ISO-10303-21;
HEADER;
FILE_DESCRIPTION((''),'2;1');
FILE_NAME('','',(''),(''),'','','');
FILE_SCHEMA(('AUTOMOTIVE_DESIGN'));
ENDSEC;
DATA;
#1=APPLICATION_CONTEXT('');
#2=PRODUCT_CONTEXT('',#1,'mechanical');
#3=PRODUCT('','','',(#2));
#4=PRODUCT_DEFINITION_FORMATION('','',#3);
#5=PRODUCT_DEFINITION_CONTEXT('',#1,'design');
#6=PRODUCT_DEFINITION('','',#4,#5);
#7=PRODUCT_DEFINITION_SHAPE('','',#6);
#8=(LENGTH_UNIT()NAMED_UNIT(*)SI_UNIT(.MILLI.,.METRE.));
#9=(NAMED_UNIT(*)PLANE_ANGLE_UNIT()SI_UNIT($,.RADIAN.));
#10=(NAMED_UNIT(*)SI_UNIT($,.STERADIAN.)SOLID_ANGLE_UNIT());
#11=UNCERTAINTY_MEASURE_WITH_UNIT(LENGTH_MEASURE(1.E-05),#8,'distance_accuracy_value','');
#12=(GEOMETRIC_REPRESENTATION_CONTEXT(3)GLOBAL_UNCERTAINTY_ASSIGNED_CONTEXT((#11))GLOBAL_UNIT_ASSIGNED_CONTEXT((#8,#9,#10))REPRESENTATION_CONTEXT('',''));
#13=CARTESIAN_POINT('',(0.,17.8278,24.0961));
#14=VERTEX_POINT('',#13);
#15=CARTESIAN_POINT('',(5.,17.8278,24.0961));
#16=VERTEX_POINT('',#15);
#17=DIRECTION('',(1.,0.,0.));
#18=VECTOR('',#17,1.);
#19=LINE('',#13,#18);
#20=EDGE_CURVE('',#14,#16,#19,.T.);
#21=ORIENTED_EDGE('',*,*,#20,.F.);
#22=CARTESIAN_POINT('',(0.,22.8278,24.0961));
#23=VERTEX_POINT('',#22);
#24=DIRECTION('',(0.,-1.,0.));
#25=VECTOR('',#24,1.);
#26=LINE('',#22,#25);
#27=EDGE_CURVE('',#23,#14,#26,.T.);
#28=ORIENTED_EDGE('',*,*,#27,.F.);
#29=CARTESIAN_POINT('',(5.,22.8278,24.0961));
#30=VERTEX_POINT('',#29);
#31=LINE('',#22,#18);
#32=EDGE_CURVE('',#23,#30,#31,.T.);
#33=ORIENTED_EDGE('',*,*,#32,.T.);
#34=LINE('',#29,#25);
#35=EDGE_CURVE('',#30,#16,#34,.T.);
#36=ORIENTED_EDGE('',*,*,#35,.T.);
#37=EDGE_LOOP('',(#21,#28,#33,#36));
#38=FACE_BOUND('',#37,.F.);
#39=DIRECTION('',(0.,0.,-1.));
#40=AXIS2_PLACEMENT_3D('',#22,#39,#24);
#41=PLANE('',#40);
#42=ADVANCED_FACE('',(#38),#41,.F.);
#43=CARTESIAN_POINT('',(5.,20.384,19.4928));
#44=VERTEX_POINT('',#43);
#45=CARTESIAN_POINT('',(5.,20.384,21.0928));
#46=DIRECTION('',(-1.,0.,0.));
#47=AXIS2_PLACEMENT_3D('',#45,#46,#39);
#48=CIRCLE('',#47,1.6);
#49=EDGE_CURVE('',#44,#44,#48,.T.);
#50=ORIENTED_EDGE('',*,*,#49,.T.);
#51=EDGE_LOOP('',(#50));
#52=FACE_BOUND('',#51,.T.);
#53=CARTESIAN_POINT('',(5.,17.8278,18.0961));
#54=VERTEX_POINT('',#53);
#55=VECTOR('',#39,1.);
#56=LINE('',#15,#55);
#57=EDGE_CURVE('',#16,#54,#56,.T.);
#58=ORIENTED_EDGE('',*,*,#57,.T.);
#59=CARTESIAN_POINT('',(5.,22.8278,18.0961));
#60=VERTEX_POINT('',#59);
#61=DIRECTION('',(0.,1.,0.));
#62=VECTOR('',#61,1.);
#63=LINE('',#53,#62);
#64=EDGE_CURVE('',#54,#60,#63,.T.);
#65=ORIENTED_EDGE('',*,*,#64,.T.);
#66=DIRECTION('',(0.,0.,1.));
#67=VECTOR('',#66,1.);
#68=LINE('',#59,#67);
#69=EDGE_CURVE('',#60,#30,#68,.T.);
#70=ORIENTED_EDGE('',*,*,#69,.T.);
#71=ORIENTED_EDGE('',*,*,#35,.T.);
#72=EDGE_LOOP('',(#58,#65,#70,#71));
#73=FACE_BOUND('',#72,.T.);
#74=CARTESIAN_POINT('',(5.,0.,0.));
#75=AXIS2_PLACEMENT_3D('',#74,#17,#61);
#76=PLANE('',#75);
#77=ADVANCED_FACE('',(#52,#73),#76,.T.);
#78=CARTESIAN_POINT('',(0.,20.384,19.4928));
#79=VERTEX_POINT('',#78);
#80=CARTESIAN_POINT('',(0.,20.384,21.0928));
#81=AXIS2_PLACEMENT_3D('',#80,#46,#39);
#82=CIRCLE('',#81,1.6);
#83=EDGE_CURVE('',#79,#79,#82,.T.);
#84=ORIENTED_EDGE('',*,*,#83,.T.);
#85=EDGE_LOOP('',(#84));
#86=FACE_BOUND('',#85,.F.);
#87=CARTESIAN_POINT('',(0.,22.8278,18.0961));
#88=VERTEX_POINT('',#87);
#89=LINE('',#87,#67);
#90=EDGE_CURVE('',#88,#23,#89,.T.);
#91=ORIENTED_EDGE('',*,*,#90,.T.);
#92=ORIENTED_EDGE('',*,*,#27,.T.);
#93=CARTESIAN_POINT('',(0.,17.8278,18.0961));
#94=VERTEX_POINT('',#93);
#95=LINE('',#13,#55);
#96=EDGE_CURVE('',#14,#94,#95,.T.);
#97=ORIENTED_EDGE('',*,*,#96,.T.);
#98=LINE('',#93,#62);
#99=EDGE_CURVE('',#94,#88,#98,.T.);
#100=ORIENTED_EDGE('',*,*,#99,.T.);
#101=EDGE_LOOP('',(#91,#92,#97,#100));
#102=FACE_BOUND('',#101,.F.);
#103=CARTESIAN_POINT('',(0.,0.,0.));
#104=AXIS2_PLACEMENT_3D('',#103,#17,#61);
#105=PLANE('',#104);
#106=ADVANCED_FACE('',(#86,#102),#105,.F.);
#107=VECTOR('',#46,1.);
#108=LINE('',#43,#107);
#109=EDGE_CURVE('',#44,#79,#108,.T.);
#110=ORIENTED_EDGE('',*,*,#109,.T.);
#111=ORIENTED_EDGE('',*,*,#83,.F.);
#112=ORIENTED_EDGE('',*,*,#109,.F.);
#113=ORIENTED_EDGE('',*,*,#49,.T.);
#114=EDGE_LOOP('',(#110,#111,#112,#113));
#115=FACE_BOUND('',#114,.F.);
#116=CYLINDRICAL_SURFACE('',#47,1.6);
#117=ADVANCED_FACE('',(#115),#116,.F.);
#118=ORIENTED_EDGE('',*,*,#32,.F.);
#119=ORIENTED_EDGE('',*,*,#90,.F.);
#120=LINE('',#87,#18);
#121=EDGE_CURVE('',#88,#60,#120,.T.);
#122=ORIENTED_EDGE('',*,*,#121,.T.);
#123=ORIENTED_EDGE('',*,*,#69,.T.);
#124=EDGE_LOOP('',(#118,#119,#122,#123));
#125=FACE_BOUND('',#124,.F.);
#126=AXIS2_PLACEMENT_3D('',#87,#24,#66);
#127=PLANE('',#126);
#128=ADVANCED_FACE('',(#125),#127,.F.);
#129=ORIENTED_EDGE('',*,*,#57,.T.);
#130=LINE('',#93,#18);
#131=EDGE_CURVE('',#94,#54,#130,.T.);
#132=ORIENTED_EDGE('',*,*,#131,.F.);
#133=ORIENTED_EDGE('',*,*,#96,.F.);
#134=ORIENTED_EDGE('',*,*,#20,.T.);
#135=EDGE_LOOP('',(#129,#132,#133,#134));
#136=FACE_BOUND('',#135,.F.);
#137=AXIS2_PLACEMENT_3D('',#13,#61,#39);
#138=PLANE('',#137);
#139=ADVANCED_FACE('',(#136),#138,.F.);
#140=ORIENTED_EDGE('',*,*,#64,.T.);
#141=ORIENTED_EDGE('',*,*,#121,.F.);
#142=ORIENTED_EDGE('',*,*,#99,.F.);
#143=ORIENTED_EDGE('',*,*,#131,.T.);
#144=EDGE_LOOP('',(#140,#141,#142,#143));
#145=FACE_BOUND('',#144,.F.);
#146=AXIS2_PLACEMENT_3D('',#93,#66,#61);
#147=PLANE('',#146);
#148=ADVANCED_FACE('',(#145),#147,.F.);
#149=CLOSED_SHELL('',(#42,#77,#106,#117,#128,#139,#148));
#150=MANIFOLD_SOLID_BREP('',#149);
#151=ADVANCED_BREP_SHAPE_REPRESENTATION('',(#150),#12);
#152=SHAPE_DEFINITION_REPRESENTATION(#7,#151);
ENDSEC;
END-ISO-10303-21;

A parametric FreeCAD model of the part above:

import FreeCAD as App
import Part
import Sketcher
from FreeCAD import Vector
Q = App.Units.Quantity


def add_polygon(sketch, points):
    """Adds a closed chain of lines whose ends are joined by coincident constraints."""
    first, n = sketch.GeometryCount, len(points)
    for a, b in zip(points, points[1:] + points[:1]):
        sketch.addGeometry(Part.LineSegment(App.Vector(*a, 0), App.Vector(*b, 0)), False)
    for i in range(n):
        sketch.addConstraint(Sketcher.Constraint("Coincident", first + i, 2, first + (i + 1) % n, 1))

doc = App.newDocument("Part")
body = doc.addObject("PartDesign::Body", "Body")

# Sketch on YZ plane
sketch1 = body.newObject("Sketcher::SketchObject", "Sketch")
sketch1.AttachmentSupport = (doc.getObject("YZ_Plane"), [""])
sketch1.MapMode = "FlatFace"
add_polygon(sketch1, [(23, 18), (23, 24), (18, 24), (18, 18)])  # lines 0-3
sketch1.addConstraint([
    Sketcher.Constraint("Vertical", 0),
    Sketcher.Constraint("Horizontal", 1),
    Sketcher.Constraint("Vertical", 2),
    Sketcher.Constraint("Horizontal", 3),
    Sketcher.Constraint("DistanceX", 1, 2, 1, 1, Q("5 mm")),
    Sketcher.Constraint("DistanceY", 0, 1, 0, 2, Q("6 mm")),
    Sketcher.Constraint("DistanceY", -1, 1, 0, 2, Q("24.096 mm")),
    Sketcher.Constraint("DistanceX", -1, 1, 0, 2, Q("22.8278 mm")),
])
pad1 = body.newObject("PartDesign::Pad", "Pad")
pad1.Profile = sketch1
pad1.Length = 5

# Sketch on YZ plane
sketch2 = body.newObject("Sketcher::SketchObject", "Sketch001")
sketch2.AttachmentSupport = (doc.getObject("YZ_Plane"), [""])
sketch2.MapMode = "FlatFace"
sketch2.AttachmentOffset = App.Placement(Vector(0, 0, 5), App.Rotation())
sketch2.addGeometry(Part.Circle(Vector(20.4, 21.1, 0), Vector(0, 0, 1), 1.6), False)
sketch2.addConstraint([
    Sketcher.Constraint("Diameter", 0, Q("3.2 mm")),
    Sketcher.Constraint("DistanceX", -1, 1, 0, 3, Q("20.384 mm")),
    Sketcher.Constraint("DistanceY", -1, 1, 0, 3, Q("21.0928 mm")),
])
doc.recompute()
hole = body.newObject("PartDesign::Hole", "Hole")
hole.Profile = sketch2
hole.ThreadType = "None"
hole.Diameter = 3.2
hole.DepthType = "ThroughAll"

doc.recompute()
